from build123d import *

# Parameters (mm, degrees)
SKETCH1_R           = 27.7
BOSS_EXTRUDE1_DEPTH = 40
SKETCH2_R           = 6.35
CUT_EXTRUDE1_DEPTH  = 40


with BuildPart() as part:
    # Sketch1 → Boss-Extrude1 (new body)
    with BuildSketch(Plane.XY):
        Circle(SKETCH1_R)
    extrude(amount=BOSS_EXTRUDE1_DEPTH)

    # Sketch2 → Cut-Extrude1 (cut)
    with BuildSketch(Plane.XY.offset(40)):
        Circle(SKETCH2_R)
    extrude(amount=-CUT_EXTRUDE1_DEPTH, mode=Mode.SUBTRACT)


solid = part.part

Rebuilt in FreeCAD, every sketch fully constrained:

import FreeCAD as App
import Part
import Sketcher
Q = App.Units.Quantity

doc = App.newDocument("Part")
body = doc.addObject("PartDesign::Body", "Body")

# Sketch on XY plane
sketch1 = body.newObject("Sketcher::SketchObject", "Sketch")
sketch1.AttachmentSupport = (doc.getObject("XY_Plane"), [""])
sketch1.MapMode = "FlatFace"
sketch1.addGeometry(Part.Circle(App.Vector(0, 0, 0), App.Vector(0, 0, 1), 27.7), False)
sketch1.addConstraint([
    Sketcher.Constraint("Coincident", 0, 3, -1, 1),
    Sketcher.Constraint("Diameter", 0, Q("55.4 mm")),
])
pad1 = body.newObject("PartDesign::Pad", "Pad")
pad1.Profile = sketch1
pad1.Length = 40

# Sketch on XY plane
sketch2 = body.newObject("Sketcher::SketchObject", "Sketch001")
sketch2.AttachmentSupport = (doc.getObject("XY_Plane"), [""])
sketch2.MapMode = "FlatFace"
sketch2.AttachmentOffset = App.Placement(App.Vector(0, 0, 40), App.Rotation())
sketch2.addGeometry(Part.Circle(App.Vector(0, 0, 0), App.Vector(0, 0, 1), 6.35), False)
sketch2.addConstraint([
    Sketcher.Constraint("Coincident", 0, 3, -1, 1),
    Sketcher.Constraint("Diameter", 0, Q("12.7 mm")),
])
pocket1 = body.newObject("PartDesign::Pocket", "Pocket")
pocket1.Profile = sketch2
pocket1.Length = 40

doc.recompute()
